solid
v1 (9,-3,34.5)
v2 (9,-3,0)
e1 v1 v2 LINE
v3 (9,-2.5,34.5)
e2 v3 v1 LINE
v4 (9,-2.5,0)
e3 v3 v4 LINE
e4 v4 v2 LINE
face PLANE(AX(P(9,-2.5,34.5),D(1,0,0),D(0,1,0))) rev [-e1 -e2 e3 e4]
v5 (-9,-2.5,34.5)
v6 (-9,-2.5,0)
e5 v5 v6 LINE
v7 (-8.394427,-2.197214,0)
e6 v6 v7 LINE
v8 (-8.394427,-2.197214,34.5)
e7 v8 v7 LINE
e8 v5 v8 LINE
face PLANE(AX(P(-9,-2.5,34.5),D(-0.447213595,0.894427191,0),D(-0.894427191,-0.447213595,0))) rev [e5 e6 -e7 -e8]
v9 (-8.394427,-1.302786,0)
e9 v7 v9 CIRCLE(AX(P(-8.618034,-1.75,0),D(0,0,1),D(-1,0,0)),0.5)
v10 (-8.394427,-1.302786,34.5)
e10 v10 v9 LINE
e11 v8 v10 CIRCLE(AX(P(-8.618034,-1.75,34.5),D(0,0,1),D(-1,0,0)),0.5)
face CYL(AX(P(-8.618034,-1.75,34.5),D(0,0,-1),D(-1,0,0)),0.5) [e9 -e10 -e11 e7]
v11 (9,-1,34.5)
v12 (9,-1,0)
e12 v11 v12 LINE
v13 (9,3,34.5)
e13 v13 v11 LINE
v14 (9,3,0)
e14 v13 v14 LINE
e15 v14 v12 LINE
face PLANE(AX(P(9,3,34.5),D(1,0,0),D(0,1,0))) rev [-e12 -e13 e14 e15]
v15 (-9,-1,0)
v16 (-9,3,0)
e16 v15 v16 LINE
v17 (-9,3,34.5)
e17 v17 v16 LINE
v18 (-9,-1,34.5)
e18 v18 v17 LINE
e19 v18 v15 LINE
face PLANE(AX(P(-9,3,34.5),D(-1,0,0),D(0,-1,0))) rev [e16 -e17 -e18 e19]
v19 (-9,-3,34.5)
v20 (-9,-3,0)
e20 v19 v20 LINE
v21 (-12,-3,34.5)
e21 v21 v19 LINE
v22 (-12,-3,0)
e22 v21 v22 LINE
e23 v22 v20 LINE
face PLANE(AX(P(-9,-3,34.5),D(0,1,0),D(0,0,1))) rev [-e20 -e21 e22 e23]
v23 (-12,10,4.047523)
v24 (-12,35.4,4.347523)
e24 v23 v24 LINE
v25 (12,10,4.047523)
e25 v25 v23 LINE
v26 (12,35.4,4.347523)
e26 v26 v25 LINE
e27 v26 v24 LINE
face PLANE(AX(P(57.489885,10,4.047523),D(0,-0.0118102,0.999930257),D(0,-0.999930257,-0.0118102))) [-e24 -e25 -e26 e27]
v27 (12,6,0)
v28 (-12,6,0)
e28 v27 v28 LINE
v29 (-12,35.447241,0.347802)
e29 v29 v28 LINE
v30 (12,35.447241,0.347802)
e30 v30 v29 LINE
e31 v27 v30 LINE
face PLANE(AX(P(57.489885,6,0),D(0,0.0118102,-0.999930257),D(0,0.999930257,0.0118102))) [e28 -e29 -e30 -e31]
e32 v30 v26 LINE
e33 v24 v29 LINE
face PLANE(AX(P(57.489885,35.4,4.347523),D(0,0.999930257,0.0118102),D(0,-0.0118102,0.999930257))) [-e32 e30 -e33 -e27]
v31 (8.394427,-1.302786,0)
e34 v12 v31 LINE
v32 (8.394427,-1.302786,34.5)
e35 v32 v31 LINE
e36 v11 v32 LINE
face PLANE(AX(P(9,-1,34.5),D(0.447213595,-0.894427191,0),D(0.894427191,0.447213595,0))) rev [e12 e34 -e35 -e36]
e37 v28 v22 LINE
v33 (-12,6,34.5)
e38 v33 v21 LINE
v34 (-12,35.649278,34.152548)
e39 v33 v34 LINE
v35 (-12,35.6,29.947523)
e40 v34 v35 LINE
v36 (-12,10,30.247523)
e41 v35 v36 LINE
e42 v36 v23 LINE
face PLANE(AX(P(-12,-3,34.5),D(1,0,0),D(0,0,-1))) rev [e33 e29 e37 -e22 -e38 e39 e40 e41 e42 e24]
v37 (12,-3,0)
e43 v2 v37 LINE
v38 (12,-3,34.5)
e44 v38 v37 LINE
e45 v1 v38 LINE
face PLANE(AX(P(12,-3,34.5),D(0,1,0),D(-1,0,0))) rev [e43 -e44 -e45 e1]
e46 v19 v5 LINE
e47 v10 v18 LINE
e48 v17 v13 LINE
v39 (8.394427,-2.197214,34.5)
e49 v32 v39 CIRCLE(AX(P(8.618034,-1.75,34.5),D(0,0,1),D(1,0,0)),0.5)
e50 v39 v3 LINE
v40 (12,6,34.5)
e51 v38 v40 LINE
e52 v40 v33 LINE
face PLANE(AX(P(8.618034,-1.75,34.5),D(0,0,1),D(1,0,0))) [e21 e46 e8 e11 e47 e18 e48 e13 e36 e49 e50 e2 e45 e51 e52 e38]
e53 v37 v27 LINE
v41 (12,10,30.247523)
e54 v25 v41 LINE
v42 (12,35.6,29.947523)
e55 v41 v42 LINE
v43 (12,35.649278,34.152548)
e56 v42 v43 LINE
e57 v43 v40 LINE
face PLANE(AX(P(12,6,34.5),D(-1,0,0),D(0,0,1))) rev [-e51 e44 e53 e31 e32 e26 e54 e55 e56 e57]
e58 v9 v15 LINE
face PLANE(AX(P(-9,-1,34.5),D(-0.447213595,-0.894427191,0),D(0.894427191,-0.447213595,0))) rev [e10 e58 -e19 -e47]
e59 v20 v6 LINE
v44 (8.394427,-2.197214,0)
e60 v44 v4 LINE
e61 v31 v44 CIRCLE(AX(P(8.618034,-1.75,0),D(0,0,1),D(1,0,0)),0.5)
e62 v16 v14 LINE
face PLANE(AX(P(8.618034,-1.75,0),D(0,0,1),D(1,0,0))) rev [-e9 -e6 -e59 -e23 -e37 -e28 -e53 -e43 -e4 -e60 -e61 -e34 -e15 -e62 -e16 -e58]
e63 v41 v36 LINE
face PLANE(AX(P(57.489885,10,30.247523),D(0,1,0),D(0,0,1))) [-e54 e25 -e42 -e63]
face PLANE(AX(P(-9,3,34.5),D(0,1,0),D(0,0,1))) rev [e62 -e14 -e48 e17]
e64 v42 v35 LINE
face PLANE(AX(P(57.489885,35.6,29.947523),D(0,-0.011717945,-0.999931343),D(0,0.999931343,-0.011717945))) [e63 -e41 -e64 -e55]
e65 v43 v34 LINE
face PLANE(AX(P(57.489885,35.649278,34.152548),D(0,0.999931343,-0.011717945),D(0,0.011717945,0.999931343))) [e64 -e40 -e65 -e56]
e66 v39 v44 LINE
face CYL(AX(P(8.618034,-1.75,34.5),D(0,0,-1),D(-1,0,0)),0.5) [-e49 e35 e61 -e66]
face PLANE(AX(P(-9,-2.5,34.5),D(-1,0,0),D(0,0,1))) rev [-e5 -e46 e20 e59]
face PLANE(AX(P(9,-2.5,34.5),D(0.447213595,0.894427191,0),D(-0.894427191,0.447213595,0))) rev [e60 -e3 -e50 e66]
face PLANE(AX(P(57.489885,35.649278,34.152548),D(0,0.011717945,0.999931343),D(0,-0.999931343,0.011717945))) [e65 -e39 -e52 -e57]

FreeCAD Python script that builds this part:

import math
import FreeCAD as App
import Part
import Sketcher

V = App.Vector

doc = App.newDocument("Part")
params = doc.addObject("Spreadsheet::Sheet", "Params")
for row, (alias, value) in enumerate([
    ("sketch1_radius", "0.5 mm"),
    ("sketch1_width", "18 mm"),
    ("sketch1_width2", "3 mm"),
    ("sketch1_height", "4 mm"),
    ("sketch1_height2", "9 mm"),
    ("pad1_length", "34.5 mm"),
    ("sketch2_length", "4 mm"),
    ("sketch2_height", "26.2 mm"),
    ("sketch2_height2", "34.5 mm"),
    ("pad2_length", "24 mm"),
], start=1):
    params.set(f"A{row}", alias)
    params.set(f"B{row}", "=" + value)
    params.setAlias(f"B{row}", alias)

body = doc.addObject("PartDesign::Body", "Body")

# Sketch on XY plane
sketch1 = doc.addObject("Sketcher::SketchObject", "Sketch")
body.addObject(sketch1)
sketch1.AttachmentSupport = (doc.XY_Plane, [""])
sketch1.MapMode = "FlatFace"
sketch1.addGeometry(Part.LineSegment(V(-9, 3, 0), V(9, 3, 0)), False)
sketch1.addGeometry(Part.LineSegment(V(9, 3, 0), V(9, -1, 0)), False)
sketch1.addGeometry(Part.LineSegment(V(9, -1, 0), V(8.394427, -1.302786, 0)), False)
sketch1.addGeometry(Part.ArcOfCircle(Part.Circle(V(8.618034, -1.75, 0), V(0, 0, 1), 0.5), math.radians(116.565051), math.radians(243.434949)), False)
sketch1.addGeometry(Part.LineSegment(V(8.394427, -2.197214, 0), V(9, -2.5, 0)), False)
sketch1.addGeometry(Part.LineSegment(V(9, -2.5, 0), V(9, -3, 0)), False)
sketch1.addGeometry(Part.LineSegment(V(9, -3, 0), V(12, -3, 0)), False)
sketch1.addGeometry(Part.LineSegment(V(12, -3, 0), V(12, 6, 0)), False)
sketch1.addGeometry(Part.LineSegment(V(12, 6, 0), V(-12, 6, 0)), False)
sketch1.addGeometry(Part.LineSegment(V(-12, 6, 0), V(-12, -3, 0)), False)
sketch1.addGeometry(Part.LineSegment(V(-12, -3, 0), V(-9, -3, 0)), False)
sketch1.addGeometry(Part.LineSegment(V(-9, -3, 0), V(-9, -2.5, 0)), False)
sketch1.addGeometry(Part.LineSegment(V(-9, -2.5, 0), V(-8.394427, -2.197214, 0)), False)
sketch1.addGeometry(Part.ArcOfCircle(Part.Circle(V(-8.618034, -1.75, 0), V(0, 0, 1), 0.5), math.radians(-63.434949), math.radians(63.434949)), False)
sketch1.addGeometry(Part.LineSegment(V(-8.394427, -1.302786, 0), V(-9, -1, 0)), False)
sketch1.addGeometry(Part.LineSegment(V(-9, -1, 0), V(-9, 3, 0)), False)
sketch1.addConstraint(Sketcher.Constraint("Coincident", 0, 2, 1, 1))
sketch1.addConstraint(Sketcher.Constraint("Coincident", 1, 2, 2, 1))
sketch1.addConstraint(Sketcher.Constraint("Tangent", 2, 2, 3, 1))
sketch1.addConstraint(Sketcher.Constraint("Tangent", 3, 2, 4, 1))
sketch1.addConstraint(Sketcher.Constraint("Coincident", 4, 2, 5, 1))
sketch1.addConstraint(Sketcher.Constraint("Coincident", 5, 2, 6, 1))
sketch1.addConstraint(Sketcher.Constraint("Coincident", 6, 2, 7, 1))
sketch1.addConstraint(Sketcher.Constraint("Coincident", 7, 2, 8, 1))
sketch1.addConstraint(Sketcher.Constraint("Coincident", 8, 2, 9, 1))
sketch1.addConstraint(Sketcher.Constraint("Coincident", 9, 2, 10, 1))
sketch1.addConstraint(Sketcher.Constraint("Coincident", 10, 2, 11, 1))
sketch1.addConstraint(Sketcher.Constraint("Coincident", 11, 2, 12, 1))
sketch1.addConstraint(Sketcher.Constraint("Tangent", 12, 2, 13, 1))
sketch1.addConstraint(Sketcher.Constraint("Tangent", 13, 2, 14, 1))
sketch1.addConstraint(Sketcher.Constraint("Coincident", 14, 2, 15, 1))
sketch1.addConstraint(Sketcher.Constraint("Coincident", 15, 2, 0, 1))
sketch1.addConstraint(Sketcher.Constraint("Horizontal", 0))
sketch1.addConstraint(Sketcher.Constraint("Vertical", 1))
sketch1.addConstraint(Sketcher.Constraint("Vertical", 5))
sketch1.addConstraint(Sketcher.Constraint("Horizontal", 6))
sketch1.addConstraint(Sketcher.Constraint("Vertical", 7))
sketch1.addConstraint(Sketcher.Constraint("Horizontal", 8))
sketch1.addConstraint(Sketcher.Constraint("Vertical", 9))
sketch1.addConstraint(Sketcher.Constraint("Horizontal", 10))
sketch1.addConstraint(Sketcher.Constraint("Vertical", 11))
sketch1.addConstraint(Sketcher.Constraint("Vertical", 15))
sketch1.addConstraint(Sketcher.Constraint("Equal", 3, 13))
sketch1.addConstraint(Sketcher.Constraint("Symmetric", 0, 2, 10, 2, -1, 1))
sketch1.addConstraint(Sketcher.Constraint("Symmetric", 5, 2, 15, 2, -1, 1))
sketch1.addConstraint(Sketcher.Constraint("Symmetric", 3, 3, 13, 3, -2))
sketch1.addConstraint(Sketcher.Constraint("Symmetric", 4, 2, 11, 2, -2))
sketch1.addConstraint(Sketcher.Constraint("Parallel", 2, 12))
sketch1.addConstraint(Sketcher.Constraint("Parallel", 4, 14))
sketch1.addConstraint(Sketcher.Constraint("Equal", 6, 10))
sketch1.addConstraint(Sketcher.Constraint("Radius", 3, 0.5))
sketch1.addConstraint(Sketcher.Constraint("DistanceX", 0, 1, 0, 2, 18.0))
sketch1.addConstraint(Sketcher.Constraint("DistanceX", 6, 1, 6, 2, 3.0))
sketch1.addConstraint(Sketcher.Constraint("DistanceY", 1, 2, 1, 1, 4.0))
sketch1.addConstraint(Sketcher.Constraint("DistanceY", 7, 1, 7, 2, 9.0))
sketch1.addConstraint(Sketcher.Constraint("DistanceY", 5, 2, 5, 1, 0.5))
sketch1.addConstraint(Sketcher.Constraint("DistanceY", -1, 1, 0, 2, 3.0))
sketch1.addConstraint(Sketcher.Constraint("Distance", 2, 0.677051))
sketch1.setExpression("Constraints[34]", "Params.sketch1_radius")
sketch1.setExpression("Constraints[35]", "Params.sketch1_width")
sketch1.setExpression("Constraints[36]", "Params.sketch1_width2")
sketch1.setExpression("Constraints[37]", "Params.sketch1_height")
sketch1.setExpression("Constraints[38]", "Params.sketch1_height2")
pad1 = doc.addObject("PartDesign::Pad", "Pad")
body.addObject(pad1)
pad1.Profile = sketch1
pad1.setExpression("Length", "Params.pad1_length")

# Sketch on YZ plane
sketch2 = doc.addObject("Sketcher::SketchObject", "Sketch001")
body.addObject(sketch2)
sketch2.AttachmentSupport = (doc.YZ_Plane, [""])
sketch2.MapMode = "FlatFace"
sketch2.AttachmentOffset = App.Placement(V(0, 0, -12), App.Rotation())
sketch2.addGeometry(Part.LineSegment(V(35.6, 29.947523, 0), V(10, 30.247523, 0)), False)
sketch2.addGeometry(Part.LineSegment(V(10, 30.247523, 0), V(10, 4.047523, 0)), False)
sketch2.addGeometry(Part.LineSegment(V(10, 4.047523, 0), V(35.4, 4.347523, 0)), False)
sketch2.addGeometry(Part.LineSegment(V(35.4, 4.347523, 0), V(35.447241, 0.347802, 0)), False)
sketch2.addGeometry(Part.LineSegment(V(35.447241, 0.347802, 0), V(6, 0, 0)), False)
sketch2.addGeometry(Part.LineSegment(V(6, 0, 0), V(6, 34.5, 0)), False)
sketch2.addGeometry(Part.LineSegment(V(6, 34.5, 0), V(35.649278, 34.152548, 0)), False)
sketch2.addGeometry(Part.LineSegment(V(35.649278, 34.152548, 0), V(35.6, 29.947523, 0)), False)
sketch2.addConstraint(Sketcher.Constraint("Coincident", 0, 2, 1, 1))
sketch2.addConstraint(Sketcher.Constraint("Coincident", 1, 2, 2, 1))
sketch2.addConstraint(Sketcher.Constraint("Coincident", 2, 2, 3, 1))
sketch2.addConstraint(Sketcher.Constraint("Coincident", 3, 2, 4, 1))
sketch2.addConstraint(Sketcher.Constraint("Coincident", 4, 2, 5, 1))
sketch2.addConstraint(Sketcher.Constraint("Coincident", 5, 2, 6, 1))
sketch2.addConstraint(Sketcher.Constraint("Coincident", 6, 2, 7, 1))
sketch2.addConstraint(Sketcher.Constraint("Coincident", 7, 2, 0, 1))
sketch2.addConstraint(Sketcher.Constraint("Vertical", 1))
sketch2.addConstraint(Sketcher.Constraint("Vertical", 5))
sketch2.addConstraint(Sketcher.Constraint("PointOnObject", 4, 2, -1))
sketch2.addConstraint(Sketcher.Constraint("Perpendicular", 2, 3))
sketch2.addConstraint(Sketcher.Constraint("Perpendicular", 3, 4))
sketch2.addConstraint(Sketcher.Constraint("Parallel", 0, 6))
sketch2.addConstraint(Sketcher.Constraint("Perpendicular", 6, 7))
sketch2.addConstraint(Sketcher.Constraint("Distance", 3, 4.0))
sketch2.addConstraint(Sketcher.Constraint("DistanceY", 1, 2, 1, 1, 26.2))
sketch2.addConstraint(Sketcher.Constraint("DistanceY", 5, 1, 5, 2, 34.5))
sketch2.addConstraint(Sketcher.Constraint("DistanceX", -1, 1, 0, 2, 10.0))
sketch2.addConstraint(Sketcher.Constraint("DistanceX", -1, 1, 4, 2, 6.0))
sketch2.addConstraint(Sketcher.Constraint("DistanceX", -1, 1, 2, 2, 35.4))
sketch2.addConstraint(Sketcher.Constraint("DistanceX", -1, 1, 7, 2, 35.6))
sketch2.addConstraint(Sketcher.Constraint("DistanceY", 1, 2, 2, 2, 0.3))
sketch2.addConstraint(Sketcher.Constraint("DistanceY", 2, 2, 7, 2, 25.6))
sketch2.setExpression("Constraints[15]", "Params.sketch2_length")
sketch2.setExpression("Constraints[16]", "Params.sketch2_height")
sketch2.setExpression("Constraints[17]", "Params.sketch2_height2")
pad2 = doc.addObject("PartDesign::Pad", "Pad001")
body.addObject(pad2)
pad2.Profile = sketch2
pad2.setExpression("Length", "Params.pad2_length")

doc.recompute()
